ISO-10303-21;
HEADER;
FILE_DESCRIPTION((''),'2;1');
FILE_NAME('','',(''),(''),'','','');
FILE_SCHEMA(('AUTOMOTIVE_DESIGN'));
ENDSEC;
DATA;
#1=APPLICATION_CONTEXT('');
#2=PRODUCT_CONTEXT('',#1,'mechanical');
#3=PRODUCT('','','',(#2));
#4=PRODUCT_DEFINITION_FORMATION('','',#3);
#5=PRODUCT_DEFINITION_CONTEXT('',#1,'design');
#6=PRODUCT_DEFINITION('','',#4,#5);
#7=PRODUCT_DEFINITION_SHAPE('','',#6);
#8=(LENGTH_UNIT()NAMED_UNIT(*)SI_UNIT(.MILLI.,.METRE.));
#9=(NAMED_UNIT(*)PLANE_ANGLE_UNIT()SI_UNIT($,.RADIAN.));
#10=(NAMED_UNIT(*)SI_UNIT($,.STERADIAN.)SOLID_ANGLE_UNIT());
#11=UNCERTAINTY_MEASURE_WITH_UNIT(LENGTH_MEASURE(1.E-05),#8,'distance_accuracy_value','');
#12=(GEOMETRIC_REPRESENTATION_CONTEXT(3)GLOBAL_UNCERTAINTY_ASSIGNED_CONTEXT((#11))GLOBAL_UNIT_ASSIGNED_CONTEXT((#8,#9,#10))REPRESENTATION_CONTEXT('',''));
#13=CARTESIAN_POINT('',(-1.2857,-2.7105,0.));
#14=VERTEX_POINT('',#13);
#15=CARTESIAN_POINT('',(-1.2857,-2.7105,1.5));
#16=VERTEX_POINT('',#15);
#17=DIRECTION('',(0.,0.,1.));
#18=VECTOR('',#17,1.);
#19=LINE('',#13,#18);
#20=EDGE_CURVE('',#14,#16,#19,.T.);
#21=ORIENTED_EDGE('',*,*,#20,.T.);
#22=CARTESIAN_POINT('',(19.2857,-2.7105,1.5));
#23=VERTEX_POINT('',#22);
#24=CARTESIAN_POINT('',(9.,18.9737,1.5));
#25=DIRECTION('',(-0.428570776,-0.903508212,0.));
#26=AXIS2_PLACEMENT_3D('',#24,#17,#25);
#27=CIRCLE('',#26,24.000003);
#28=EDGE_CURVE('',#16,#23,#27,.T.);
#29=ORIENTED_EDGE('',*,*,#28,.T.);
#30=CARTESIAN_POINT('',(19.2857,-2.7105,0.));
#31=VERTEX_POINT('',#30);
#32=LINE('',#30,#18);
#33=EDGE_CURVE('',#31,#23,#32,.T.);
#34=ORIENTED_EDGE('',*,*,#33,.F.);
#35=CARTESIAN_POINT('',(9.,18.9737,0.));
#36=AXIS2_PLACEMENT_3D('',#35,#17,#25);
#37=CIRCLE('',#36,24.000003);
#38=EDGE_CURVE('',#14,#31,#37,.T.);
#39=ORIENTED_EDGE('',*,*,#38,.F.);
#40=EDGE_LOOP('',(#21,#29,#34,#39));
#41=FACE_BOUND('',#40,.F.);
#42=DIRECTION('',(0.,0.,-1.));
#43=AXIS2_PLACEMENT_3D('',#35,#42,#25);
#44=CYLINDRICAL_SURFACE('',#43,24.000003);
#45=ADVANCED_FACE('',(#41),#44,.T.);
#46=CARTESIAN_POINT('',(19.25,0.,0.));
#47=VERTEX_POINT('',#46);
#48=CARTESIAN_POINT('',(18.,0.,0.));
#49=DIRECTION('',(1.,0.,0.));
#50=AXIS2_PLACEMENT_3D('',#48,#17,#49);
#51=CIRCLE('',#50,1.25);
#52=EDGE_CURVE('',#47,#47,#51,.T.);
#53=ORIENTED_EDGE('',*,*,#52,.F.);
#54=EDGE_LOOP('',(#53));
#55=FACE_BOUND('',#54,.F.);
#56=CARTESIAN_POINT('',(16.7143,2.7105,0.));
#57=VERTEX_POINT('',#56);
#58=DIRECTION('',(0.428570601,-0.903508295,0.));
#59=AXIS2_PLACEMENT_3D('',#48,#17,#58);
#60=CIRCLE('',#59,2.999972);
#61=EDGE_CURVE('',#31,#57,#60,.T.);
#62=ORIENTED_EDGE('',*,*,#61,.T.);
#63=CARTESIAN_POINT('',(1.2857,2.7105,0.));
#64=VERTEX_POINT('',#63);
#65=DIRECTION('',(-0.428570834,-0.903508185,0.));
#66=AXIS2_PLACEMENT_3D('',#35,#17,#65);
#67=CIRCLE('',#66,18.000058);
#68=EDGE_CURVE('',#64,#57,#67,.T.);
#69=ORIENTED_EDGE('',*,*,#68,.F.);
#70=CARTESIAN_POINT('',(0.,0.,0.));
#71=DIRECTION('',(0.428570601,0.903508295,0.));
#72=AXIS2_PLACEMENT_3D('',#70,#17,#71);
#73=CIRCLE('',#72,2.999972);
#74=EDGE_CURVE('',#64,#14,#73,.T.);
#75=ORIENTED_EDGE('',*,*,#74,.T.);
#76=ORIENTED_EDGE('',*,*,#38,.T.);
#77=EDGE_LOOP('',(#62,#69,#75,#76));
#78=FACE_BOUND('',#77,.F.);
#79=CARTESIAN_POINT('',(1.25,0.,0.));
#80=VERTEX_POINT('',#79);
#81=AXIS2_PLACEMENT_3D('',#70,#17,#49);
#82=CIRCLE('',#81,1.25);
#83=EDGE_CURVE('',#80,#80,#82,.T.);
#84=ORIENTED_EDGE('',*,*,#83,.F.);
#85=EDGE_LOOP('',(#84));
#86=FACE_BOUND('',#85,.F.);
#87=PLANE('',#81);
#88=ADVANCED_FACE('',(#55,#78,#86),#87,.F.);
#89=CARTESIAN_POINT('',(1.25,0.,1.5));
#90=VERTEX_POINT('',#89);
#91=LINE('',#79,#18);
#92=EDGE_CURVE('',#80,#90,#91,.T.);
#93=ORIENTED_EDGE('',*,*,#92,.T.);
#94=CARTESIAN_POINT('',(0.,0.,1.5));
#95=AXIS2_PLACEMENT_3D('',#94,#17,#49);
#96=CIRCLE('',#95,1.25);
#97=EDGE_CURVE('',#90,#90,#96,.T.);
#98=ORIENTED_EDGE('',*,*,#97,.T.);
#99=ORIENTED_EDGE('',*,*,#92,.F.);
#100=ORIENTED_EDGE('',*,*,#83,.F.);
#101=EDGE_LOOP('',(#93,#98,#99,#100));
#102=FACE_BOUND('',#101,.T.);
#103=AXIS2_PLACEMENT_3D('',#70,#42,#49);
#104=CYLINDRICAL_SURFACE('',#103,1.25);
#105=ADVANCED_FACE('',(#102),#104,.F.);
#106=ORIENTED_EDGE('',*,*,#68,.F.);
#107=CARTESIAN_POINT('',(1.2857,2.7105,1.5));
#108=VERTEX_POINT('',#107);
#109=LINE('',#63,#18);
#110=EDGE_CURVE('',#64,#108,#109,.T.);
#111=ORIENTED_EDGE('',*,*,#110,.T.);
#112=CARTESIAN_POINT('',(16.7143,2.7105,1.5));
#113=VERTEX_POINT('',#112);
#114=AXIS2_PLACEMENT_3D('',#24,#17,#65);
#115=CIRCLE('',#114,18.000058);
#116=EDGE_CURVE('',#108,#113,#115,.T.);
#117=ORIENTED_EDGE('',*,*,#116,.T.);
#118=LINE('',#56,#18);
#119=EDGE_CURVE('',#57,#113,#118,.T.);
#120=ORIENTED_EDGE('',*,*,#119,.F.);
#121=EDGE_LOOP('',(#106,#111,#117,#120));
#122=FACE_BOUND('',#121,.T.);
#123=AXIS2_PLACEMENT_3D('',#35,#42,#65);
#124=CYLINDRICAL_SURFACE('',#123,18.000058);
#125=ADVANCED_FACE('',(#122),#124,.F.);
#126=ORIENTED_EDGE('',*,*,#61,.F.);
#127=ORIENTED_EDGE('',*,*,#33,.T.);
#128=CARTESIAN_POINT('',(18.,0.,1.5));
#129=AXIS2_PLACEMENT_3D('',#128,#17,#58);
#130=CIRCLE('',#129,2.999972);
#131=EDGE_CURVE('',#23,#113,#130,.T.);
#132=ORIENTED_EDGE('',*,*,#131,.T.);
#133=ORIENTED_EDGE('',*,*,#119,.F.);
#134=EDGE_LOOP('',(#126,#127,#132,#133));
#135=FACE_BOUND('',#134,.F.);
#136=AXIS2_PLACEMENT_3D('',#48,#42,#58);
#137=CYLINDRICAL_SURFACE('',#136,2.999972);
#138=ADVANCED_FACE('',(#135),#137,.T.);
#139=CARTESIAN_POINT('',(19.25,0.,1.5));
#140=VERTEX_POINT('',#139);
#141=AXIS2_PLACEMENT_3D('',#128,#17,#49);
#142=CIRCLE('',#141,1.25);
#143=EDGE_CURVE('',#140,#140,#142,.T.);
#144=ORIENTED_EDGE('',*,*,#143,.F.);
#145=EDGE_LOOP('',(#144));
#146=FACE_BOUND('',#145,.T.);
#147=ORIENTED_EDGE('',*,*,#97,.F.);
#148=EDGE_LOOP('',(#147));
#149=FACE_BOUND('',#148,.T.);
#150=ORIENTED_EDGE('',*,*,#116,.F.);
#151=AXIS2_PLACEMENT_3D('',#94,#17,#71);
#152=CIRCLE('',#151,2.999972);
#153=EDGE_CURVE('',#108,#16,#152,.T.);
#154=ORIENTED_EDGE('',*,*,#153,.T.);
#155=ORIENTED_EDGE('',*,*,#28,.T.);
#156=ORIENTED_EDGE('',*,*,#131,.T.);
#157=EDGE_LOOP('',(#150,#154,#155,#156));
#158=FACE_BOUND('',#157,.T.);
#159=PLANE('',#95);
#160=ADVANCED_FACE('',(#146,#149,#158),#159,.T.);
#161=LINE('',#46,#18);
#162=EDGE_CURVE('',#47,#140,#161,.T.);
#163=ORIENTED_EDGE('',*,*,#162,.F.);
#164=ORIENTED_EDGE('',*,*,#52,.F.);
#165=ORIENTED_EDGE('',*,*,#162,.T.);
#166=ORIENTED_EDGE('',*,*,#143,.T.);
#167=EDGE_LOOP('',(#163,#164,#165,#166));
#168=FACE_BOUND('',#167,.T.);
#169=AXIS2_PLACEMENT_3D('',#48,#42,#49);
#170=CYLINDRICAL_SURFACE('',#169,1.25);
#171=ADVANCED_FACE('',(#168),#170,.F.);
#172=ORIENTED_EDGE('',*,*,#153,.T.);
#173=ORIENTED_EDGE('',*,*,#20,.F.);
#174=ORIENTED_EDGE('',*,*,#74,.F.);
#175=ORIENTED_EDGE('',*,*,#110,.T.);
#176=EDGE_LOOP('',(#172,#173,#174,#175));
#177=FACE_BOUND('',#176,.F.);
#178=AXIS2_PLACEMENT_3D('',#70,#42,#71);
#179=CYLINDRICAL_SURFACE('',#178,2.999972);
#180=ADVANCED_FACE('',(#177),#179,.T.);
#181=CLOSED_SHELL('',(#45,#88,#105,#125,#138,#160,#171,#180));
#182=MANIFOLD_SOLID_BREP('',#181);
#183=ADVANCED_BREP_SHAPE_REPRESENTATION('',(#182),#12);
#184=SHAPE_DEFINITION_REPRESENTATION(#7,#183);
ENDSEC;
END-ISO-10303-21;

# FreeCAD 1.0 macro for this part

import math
import FreeCAD as App
import Part
import Sketcher
from FreeCAD import Vector
Q = App.Units.Quantity

doc = App.newDocument("Part")
params = doc.addObject("Spreadsheet::Sheet", "Params")
for row, (alias, value) in enumerate([
    ("sketch1_radius", "18 mm"),
    ("sketch1_radius2", "3 mm"),
    ("sketch1_diameter", "2.5 mm"),
    ("pad1_length", "1.5 mm"),
], start=1):
    params.set(f"A{row}", alias)
    params.set(f"B{row}", "=" + value)
    params.setAlias(f"B{row}", alias)

body = doc.addObject("PartDesign::Body", "Body")

sketch1 = body.newObject("Sketcher::SketchObject", "Sketch")
sketch1.AttachmentSupport = (doc.getObject("XY_Plane"), [""])
sketch1.MapMode = "FlatFace"
sketch1.addGeometry(Part.ArcOfCircle(Part.Circle(Vector(9, 19, 0), Vector(0, 0, 1), 18), math.radians(-115), math.radians(-65)), False)
sketch1.addGeometry(Part.ArcOfCircle(Part.Circle(Vector(0, 0, 0), Vector(0, 0, 1), 3), math.radians(65), math.radians(245)), False)
sketch1.addGeometry(Part.ArcOfCircle(Part.Circle(Vector(9, 19, 0), Vector(0, 0, 1), 24), math.radians(-115), math.radians(-65)), False)
sketch1.addGeometry(Part.ArcOfCircle(Part.Circle(Vector(18, 0, 0), Vector(0, 0, 1), 3), math.radians(-65), math.radians(115)), False)
sketch1.addGeometry(Part.Circle(Vector(0, 0, 0), Vector(0, 0, 1), 1.2), False)
sketch1.addGeometry(Part.Circle(Vector(18, 0, 0), Vector(0, 0, 1), 1.2), False)
sketch1.addConstraint(Sketcher.Constraint("Tangent", 0, 1, 1, 1))
sketch1.addConstraint(Sketcher.Constraint("Tangent", 1, 2, 2, 1))
sketch1.addConstraint(Sketcher.Constraint("Tangent", 2, 2, 3, 1))
sketch1.addConstraint(Sketcher.Constraint("Tangent", 3, 2, 0, 2))
sketch1.addConstraint(Sketcher.Constraint("Coincident", 1, 3, -1, 1))
sketch1.addConstraint(Sketcher.Constraint("Coincident", 4, 3, -1, 1))
sketch1.addConstraint(Sketcher.Constraint("Coincident", 2, 3, 0, 3))
sketch1.addConstraint(Sketcher.Constraint("Coincident", 5, 3, 3, 3))
sketch1.addConstraint(Sketcher.Constraint("Equal", 4, 5))
sketch1.addConstraint(Sketcher.Constraint("PointOnObject", 3, 3, -1))
sketch1.addConstraint(Sketcher.Constraint("Radius", 0, Q("18 mm")))
sketch1.addConstraint(Sketcher.Constraint("Radius", 1, Q("3 mm")))
sketch1.addConstraint(Sketcher.Constraint("Diameter", 4, Q("2.5 mm")))
sketch1.addConstraint(Sketcher.Constraint("DistanceX", -1, 1, 3, 3, Q("18 mm")))
sketch1.setExpression("Constraints[10]", "Params.sketch1_radius")
sketch1.setExpression("Constraints[11]", "Params.sketch1_radius2")
sketch1.setExpression("Constraints[12]", "Params.sketch1_diameter")
pad1 = body.newObject("PartDesign::Pad", "Pad")
pad1.Profile = sketch1
pad1.setExpression("Length", "Params.pad1_length")

doc.recompute()
